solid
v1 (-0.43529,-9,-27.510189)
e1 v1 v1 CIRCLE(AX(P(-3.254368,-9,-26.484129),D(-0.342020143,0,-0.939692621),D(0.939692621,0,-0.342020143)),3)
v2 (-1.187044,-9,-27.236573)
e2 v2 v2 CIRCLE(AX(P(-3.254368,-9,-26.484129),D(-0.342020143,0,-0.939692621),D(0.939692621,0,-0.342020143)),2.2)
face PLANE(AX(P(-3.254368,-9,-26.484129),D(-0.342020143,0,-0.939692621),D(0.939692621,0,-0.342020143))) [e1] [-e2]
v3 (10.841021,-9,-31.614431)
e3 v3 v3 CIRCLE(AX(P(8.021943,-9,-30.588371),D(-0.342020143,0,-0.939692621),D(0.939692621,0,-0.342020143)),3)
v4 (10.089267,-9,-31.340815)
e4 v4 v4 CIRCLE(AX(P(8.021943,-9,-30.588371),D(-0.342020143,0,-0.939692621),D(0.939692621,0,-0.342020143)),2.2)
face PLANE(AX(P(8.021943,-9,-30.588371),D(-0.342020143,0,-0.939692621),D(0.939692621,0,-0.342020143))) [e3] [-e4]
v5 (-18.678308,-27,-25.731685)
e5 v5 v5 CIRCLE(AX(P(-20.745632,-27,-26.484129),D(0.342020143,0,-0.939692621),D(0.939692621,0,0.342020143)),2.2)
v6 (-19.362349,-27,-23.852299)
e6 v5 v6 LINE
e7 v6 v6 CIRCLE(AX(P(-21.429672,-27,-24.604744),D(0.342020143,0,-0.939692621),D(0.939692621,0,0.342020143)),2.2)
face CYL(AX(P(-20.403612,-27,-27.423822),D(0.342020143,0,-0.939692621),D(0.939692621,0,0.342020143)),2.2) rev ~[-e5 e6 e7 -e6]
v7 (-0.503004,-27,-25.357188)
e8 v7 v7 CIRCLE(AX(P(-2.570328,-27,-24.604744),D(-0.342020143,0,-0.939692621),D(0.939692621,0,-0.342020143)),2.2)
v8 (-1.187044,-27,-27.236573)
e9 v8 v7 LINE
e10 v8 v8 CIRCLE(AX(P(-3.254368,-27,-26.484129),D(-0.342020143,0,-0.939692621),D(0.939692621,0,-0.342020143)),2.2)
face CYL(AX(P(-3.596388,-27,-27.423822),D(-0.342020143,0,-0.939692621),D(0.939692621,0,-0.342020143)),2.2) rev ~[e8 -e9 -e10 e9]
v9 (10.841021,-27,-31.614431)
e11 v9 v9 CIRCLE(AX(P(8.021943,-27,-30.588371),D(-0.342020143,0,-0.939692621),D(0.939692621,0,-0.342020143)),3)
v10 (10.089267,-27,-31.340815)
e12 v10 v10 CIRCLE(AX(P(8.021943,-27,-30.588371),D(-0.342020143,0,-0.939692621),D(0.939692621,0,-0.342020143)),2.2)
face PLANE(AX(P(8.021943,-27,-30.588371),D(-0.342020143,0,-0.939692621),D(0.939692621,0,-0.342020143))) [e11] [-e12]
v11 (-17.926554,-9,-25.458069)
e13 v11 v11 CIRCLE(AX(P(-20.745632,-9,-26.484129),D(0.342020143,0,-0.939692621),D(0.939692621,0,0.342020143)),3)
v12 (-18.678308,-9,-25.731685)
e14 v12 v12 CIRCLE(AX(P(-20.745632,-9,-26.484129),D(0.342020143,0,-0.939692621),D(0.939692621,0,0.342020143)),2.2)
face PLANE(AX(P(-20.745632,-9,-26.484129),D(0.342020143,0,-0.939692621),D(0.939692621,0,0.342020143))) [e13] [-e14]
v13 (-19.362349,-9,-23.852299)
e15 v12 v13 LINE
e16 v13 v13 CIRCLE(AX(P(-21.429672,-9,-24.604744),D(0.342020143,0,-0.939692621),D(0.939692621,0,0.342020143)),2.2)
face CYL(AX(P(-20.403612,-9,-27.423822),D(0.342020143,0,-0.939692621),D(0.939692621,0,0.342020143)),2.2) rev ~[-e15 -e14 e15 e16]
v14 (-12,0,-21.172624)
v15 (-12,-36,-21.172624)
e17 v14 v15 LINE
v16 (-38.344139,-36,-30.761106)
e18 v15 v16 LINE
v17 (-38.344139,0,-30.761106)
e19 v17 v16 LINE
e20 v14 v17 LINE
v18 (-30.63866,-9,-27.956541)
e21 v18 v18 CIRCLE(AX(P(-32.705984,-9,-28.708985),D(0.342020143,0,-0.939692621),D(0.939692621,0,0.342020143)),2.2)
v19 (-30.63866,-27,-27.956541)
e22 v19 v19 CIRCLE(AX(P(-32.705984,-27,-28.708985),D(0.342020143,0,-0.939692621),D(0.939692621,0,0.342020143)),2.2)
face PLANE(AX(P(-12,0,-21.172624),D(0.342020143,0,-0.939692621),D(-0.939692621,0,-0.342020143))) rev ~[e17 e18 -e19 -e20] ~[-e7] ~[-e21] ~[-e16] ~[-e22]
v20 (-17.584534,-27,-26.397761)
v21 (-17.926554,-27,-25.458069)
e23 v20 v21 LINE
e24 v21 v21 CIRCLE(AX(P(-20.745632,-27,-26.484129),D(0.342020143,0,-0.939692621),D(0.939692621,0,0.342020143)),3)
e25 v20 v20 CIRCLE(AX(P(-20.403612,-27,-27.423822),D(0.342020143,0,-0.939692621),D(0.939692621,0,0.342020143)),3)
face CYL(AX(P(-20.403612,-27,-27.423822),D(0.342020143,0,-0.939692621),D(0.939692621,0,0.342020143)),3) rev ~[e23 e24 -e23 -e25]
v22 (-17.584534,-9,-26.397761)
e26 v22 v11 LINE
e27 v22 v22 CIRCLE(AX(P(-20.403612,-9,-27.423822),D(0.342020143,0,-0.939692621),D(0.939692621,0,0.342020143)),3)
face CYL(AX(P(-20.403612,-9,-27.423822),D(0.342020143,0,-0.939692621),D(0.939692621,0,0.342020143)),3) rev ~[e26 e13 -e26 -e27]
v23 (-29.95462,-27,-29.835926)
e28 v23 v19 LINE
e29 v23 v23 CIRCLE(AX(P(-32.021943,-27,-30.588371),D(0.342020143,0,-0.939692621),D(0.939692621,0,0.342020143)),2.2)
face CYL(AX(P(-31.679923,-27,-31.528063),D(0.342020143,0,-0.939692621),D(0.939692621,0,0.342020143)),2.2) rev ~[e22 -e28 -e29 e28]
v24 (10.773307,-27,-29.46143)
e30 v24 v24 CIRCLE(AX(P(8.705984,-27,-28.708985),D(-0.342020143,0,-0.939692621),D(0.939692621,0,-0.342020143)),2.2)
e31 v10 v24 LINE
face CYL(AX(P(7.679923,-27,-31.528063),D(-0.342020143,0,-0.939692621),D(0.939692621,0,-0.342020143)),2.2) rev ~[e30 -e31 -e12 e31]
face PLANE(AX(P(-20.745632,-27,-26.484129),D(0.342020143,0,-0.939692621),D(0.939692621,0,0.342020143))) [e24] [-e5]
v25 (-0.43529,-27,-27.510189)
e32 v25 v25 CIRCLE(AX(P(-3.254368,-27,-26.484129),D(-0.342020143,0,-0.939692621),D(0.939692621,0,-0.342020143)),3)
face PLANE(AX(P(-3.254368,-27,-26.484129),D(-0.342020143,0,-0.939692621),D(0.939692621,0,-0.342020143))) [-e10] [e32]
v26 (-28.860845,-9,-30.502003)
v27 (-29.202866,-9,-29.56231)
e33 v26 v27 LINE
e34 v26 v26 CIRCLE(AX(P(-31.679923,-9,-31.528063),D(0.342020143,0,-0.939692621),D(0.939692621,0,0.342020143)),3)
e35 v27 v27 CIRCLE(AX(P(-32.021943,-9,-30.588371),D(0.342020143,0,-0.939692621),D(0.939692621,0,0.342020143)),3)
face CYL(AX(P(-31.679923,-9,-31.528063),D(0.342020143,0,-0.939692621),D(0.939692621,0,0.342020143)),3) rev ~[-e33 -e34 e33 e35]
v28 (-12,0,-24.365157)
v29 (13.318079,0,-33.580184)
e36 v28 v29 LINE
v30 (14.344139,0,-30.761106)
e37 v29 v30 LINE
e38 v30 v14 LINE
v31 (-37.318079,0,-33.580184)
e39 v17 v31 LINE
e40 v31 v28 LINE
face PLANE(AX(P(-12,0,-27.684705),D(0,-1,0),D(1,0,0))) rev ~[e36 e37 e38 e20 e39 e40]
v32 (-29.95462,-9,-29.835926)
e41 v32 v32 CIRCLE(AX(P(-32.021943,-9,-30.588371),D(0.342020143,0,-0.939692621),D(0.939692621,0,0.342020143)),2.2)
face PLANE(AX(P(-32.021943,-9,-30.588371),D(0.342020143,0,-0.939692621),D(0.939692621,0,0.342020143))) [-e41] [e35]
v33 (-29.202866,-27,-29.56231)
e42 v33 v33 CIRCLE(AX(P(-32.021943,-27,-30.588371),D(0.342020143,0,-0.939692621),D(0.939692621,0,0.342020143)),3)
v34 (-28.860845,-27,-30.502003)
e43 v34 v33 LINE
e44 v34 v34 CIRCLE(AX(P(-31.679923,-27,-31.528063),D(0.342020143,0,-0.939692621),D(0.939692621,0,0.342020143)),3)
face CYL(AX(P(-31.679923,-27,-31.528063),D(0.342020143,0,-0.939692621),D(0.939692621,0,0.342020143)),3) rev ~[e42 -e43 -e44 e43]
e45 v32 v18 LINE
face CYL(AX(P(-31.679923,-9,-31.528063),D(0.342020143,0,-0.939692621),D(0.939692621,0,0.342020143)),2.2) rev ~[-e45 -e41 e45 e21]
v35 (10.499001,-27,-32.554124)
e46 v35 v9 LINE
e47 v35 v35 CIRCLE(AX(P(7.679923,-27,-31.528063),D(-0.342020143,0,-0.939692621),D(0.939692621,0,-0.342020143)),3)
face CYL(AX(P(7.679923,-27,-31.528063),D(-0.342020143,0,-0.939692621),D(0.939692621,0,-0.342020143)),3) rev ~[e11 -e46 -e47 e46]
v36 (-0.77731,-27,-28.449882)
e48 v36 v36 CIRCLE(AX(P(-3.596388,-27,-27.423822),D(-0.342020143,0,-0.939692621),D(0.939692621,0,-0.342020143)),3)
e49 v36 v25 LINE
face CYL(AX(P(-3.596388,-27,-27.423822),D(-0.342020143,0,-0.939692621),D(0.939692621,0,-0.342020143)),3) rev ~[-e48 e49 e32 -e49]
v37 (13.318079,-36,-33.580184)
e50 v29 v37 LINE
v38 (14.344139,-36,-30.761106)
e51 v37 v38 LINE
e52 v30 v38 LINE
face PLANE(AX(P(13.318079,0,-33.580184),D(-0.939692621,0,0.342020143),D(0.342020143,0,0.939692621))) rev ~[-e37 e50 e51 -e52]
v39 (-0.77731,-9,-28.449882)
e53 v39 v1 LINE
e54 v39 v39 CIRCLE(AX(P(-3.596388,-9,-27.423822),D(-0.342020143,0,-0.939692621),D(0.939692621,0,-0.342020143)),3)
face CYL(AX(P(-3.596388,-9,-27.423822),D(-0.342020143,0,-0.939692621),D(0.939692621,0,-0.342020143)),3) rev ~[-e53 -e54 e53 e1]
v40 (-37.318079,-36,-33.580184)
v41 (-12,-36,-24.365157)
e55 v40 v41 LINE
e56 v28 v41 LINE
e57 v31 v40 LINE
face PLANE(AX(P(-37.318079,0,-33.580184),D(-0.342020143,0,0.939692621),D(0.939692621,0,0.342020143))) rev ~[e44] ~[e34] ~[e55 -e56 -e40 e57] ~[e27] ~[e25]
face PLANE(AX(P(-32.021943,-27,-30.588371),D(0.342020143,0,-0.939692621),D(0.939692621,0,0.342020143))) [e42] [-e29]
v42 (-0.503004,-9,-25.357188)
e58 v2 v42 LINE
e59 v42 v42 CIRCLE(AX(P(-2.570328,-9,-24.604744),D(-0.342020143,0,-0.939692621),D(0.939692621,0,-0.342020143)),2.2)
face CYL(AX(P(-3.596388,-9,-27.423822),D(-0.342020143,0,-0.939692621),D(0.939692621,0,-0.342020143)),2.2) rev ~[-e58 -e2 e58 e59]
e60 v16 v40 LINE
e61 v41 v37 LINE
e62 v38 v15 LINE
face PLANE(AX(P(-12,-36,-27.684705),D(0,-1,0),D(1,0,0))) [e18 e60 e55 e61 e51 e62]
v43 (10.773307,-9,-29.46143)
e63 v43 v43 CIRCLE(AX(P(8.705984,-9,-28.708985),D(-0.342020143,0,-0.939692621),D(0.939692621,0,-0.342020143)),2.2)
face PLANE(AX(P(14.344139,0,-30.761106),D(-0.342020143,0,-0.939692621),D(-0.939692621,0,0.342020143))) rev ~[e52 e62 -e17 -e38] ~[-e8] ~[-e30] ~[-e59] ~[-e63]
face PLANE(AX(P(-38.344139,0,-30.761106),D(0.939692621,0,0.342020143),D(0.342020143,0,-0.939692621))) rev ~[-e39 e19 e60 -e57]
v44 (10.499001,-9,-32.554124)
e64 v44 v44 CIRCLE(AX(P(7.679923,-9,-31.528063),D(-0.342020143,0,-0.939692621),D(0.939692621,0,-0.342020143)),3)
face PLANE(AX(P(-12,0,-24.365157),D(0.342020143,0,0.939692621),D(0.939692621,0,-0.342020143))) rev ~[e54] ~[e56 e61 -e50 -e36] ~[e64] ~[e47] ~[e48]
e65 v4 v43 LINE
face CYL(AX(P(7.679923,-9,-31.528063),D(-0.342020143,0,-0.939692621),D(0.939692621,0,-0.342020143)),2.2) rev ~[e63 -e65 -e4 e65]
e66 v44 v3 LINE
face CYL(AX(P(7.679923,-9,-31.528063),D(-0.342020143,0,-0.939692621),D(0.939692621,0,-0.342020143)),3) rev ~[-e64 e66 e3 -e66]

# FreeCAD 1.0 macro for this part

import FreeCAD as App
import Part
import Sketcher

V = App.Vector
Q = App.Units.Quantity


def add_polygon(sketch, points):
    """Adds a closed chain of lines whose ends are joined by coincident constraints."""
    first, n = sketch.GeometryCount, len(points)
    for a, b in zip(points, points[1:] + points[:1]):
        sketch.addGeometry(Part.LineSegment(App.Vector(*a, 0), App.Vector(*b, 0)), False)
    for i in range(n):
        sketch.addConstraint(Sketcher.Constraint("Coincident", first + i, 2, first + (i + 1) % n, 1))

doc = App.newDocument("Part")
body = doc.addObject("PartDesign::Body", "Body")

# Sketch on XZ plane
sketch1 = doc.addObject("Sketcher::SketchObject", "Sketch")
body.addObject(sketch1)
sketch1.AttachmentSupport = (doc.XZ_Plane, [""])
sketch1.MapMode = "FlatFace"
add_polygon(sketch1, [(-12, -21.2), (-38.3, -30.8), (-37.3, -33.6), (-12, -24.4), (13.3, -33.6), (14.3, -30.8)])  # lines 0-5
sketch1.addConstraint([
    Sketcher.Constraint("Perpendicular", 0, 1),
    Sketcher.Constraint("Perpendicular", 1, 2),
    Sketcher.Constraint("Perpendicular", 3, 4),
    Sketcher.Constraint("Perpendicular", 4, 5),
    Sketcher.Constraint("Horizontal", 1, 2, 3, 2),
    Sketcher.Constraint("Horizontal", 0, 2, 4, 2),
    Sketcher.Constraint("Vertical", 2, 2, 5, 2),
    Sketcher.Constraint("Angle", 0, Q("-160 deg")),
    Sketcher.Constraint("Distance", 1, 3.0),
    Sketcher.Constraint("DistanceX", 2, 2, -1, 1, 12.0),
    Sketcher.Constraint("DistanceX", 0, 2, -1, 1, 38.344139),
    Sketcher.Constraint("DistanceY", 0, 2, -1, 1, 30.761106),
])
pad1 = doc.addObject("PartDesign::Pad", "Pad")
body.addObject(pad1)
pad1.Profile = sketch1
pad1.Length = 36

# Sketch on an angled plane
sketch2 = doc.addObject("Sketcher::SketchObject", "Sketch001")
body.addObject(sketch2)
sketch2.Placement = App.Placement(V(6.427077, 0, -17.658249), App.Rotation(V(0.939692621, 0, 0.342020143), V(0, -1, 0), V(0.342020143, 0, -0.939692621), "ZXY"))
sketch2.addGeometry([
    Part.Circle(V(-40.6, 27, 0), V(0, 0, 1), 2.2),
    Part.Circle(V(-28.6, 27, 0), V(0, 0, 1), 2.2),
    Part.Circle(V(-28.6, 9, 0), V(0, 0, 1), 2.2),
    Part.Circle(V(-40.6, 9, 0), V(0, 0, 1), 2.2),
], False)
sketch2.addConstraint([
    Sketcher.Constraint("Equal", 0, 1),
    Sketcher.Constraint("Equal", 1, 2),
    Sketcher.Constraint("Equal", 2, 3),
    Sketcher.Constraint("Horizontal", 0, 3, 1, 3),
    Sketcher.Constraint("Horizontal", 2, 3, 3, 3),
    Sketcher.Constraint("Vertical", 1, 3, 2, 3),
    Sketcher.Constraint("Vertical", 0, 3, 3, 3),
    Sketcher.Constraint("Diameter", 0, 4.4),
    Sketcher.Constraint("DistanceY", -1, 1, 0, 3, 27.0),
    Sketcher.Constraint("DistanceY", -1, 1, 2, 3, 9.0),
    Sketcher.Constraint("DistanceX", 0, 3, 1, 3, 12.0),
    Sketcher.Constraint("DistanceX", 0, 3, -1, 1, 40.552623),
])
pocket1 = doc.addObject("PartDesign::Pocket", "Pocket")
body.addObject(pocket1)
pocket1.Profile = sketch2
pocket1.Type = "ThroughAll"

# Sketch on an angled plane
sketch3 = doc.addObject("Sketcher::SketchObject", "Sketch002")
body.addObject(sketch3)
sketch3.Placement = App.Placement(V(6.427077, 0, -17.658249), App.Rotation(V(0.939692621, 0, 0.342020143), V(0, -1, 0), V(0.342020143, 0, -0.939692621), "ZXY"))
sketch3.addGeometry([
    Part.Circle(V(-40.6, 27, 0), V(0, 0, 1), 3),  # 0
    Part.Circle(V(-40.6, 27, 0), V(0, 0, 1), 2.2),  # 1
    Part.Circle(V(-40.6, 9, 0), V(0, 0, 1), 3),  # 2
    Part.Circle(V(-40.6, 9, 0), V(0, 0, 1), 2.2),  # 3
    Part.Circle(V(-28.6, 9, 0), V(0, 0, 1), 3),  # 4
    Part.Circle(V(-28.6, 9, 0), V(0, 0, 1), 2.2),  # 5
    Part.Circle(V(-28.6, 27, 0), V(0, 0, 1), 3),  # 6
    Part.Circle(V(-28.6, 27, 0), V(0, 0, 1), 2.2),  # 7
], False)
sketch3.addConstraint([
    Sketcher.Constraint("Coincident", 1, 3, 0, 3),
    Sketcher.Constraint("Coincident", 3, 3, 2, 3),
    Sketcher.Constraint("Coincident", 5, 3, 4, 3),
    Sketcher.Constraint("Coincident", 7, 3, 6, 3),
    Sketcher.Constraint("Equal", 0, 2),
    Sketcher.Constraint("Equal", 1, 3),
    Sketcher.Constraint("Equal", 2, 4),
    Sketcher.Constraint("Equal", 3, 5),
    Sketcher.Constraint("Equal", 4, 6),
    Sketcher.Constraint("Equal", 5, 7),
    Sketcher.Constraint("Horizontal", 3, 3, 4, 3),
    Sketcher.Constraint("Horizontal", 1, 3, 6, 3),
    Sketcher.Constraint("Vertical", 1, 3, 2, 3),
    Sketcher.Constraint("Vertical", 5, 3, 6, 3),
    Sketcher.Constraint("Diameter", 0, 6.0),
    Sketcher.Constraint("Diameter", 1, 4.4),
    Sketcher.Constraint("DistanceY", -1, 1, 0, 3, 27.0),
    Sketcher.Constraint("DistanceY", -1, 1, 2, 3, 9.0),
    Sketcher.Constraint("DistanceX", 2, 3, 4, 3, 12.0),
    Sketcher.Constraint("DistanceX", 0, 3, -1, 1, 40.552623),
])
pocket2 = doc.addObject("PartDesign::Pocket", "Pocket001")
body.addObject(pocket2)
pocket2.Profile = sketch3
pocket2.Length = 1

# Sketch on an angled plane
sketch4 = doc.addObject("Sketcher::SketchObject", "Sketch003")
body.addObject(sketch4)
sketch4.Placement = App.Placement(V(-9.234544, 0, -25.371701), App.Rotation(V(0.939692621, 0, -0.342020143), V(0, -1, 0), V(-0.342020143, 0, -0.939692621), "ZXY"))
sketch4.addGeometry([
    Part.Circle(V(6, 27, 0), V(0, 0, 1), 2.2),
    Part.Circle(V(18, 27, 0), V(0, 0, 1), 2.2),
    Part.Circle(V(6, 9, 0), V(0, 0, 1), 2.2),
    Part.Circle(V(18, 9, 0), V(0, 0, 1), 2.2),
], False)
sketch4.addConstraint([
    Sketcher.Constraint("Equal", 0, 1),
    Sketcher.Constraint("Equal", 1, 2),
    Sketcher.Constraint("Equal", 2, 3),
    Sketcher.Constraint("Horizontal", 0, 3, 1, 3),
    Sketcher.Constraint("Horizontal", 2, 3, 3, 3),
    Sketcher.Constraint("Vertical", 0, 3, 2, 3),
    Sketcher.Constraint("Vertical", 1, 3, 3, 3),
    Sketcher.Constraint("Diameter", 0, 4.4),
    Sketcher.Constraint("DistanceX", -1, 1, 0, 3, 6.0),
    Sketcher.Constraint("DistanceY", -1, 1, 0, 3, 27.0),
    Sketcher.Constraint("DistanceX", -1, 1, 1, 3, 18.0),
    Sketcher.Constraint("DistanceY", -1, 1, 2, 3, 9.0),
])
pocket3 = doc.addObject("PartDesign::Pocket", "Pocket002")
body.addObject(pocket3)
pocket3.Profile = sketch4
pocket3.Type = "ThroughAll"

# Sketch on an angled plane
sketch5 = doc.addObject("Sketcher::SketchObject", "Sketch004")
body.addObject(sketch5)
sketch5.Placement = App.Placement(V(-9.234544, 0, -25.371701), App.Rotation(V(0.939692621, 0, -0.342020143), V(0, -1, 0), V(-0.342020143, 0, -0.939692621), "ZXY"))
sketch5.addGeometry([
    Part.Circle(V(6, 27, 0), V(0, 0, 1), 3),  # 0
    Part.Circle(V(6, 27, 0), V(0, 0, 1), 2.2),  # 1
    Part.Circle(V(18, 27, 0), V(0, 0, 1), 3),  # 2
    Part.Circle(V(18, 27, 0), V(0, 0, 1), 2.2),  # 3
    Part.Circle(V(18, 9, 0), V(0, 0, 1), 3),  # 4
    Part.Circle(V(18, 9, 0), V(0, 0, 1), 2.2),  # 5
    Part.Circle(V(6, 9, 0), V(0, 0, 1), 3),  # 6
    Part.Circle(V(6, 9, 0), V(0, 0, 1), 2.2),  # 7
], False)
sketch5.addConstraint([
    Sketcher.Constraint("Coincident", 1, 3, 0, 3),
    Sketcher.Constraint("Coincident", 3, 3, 2, 3),
    Sketcher.Constraint("Coincident", 5, 3, 4, 3),
    Sketcher.Constraint("Coincident", 7, 3, 6, 3),
    Sketcher.Constraint("Equal", 0, 2),
    Sketcher.Constraint("Equal", 1, 3),
    Sketcher.Constraint("Equal", 2, 4),
    Sketcher.Constraint("Equal", 3, 5),
    Sketcher.Constraint("Equal", 4, 6),
    Sketcher.Constraint("Equal", 5, 7),
    Sketcher.Constraint("Horizontal", 1, 3, 2, 3),
    Sketcher.Constraint("Horizontal", 5, 3, 6, 3),
    Sketcher.Constraint("Vertical", 3, 3, 4, 3),
    Sketcher.Constraint("Vertical", 1, 3, 6, 3),
    Sketcher.Constraint("Diameter", 0, 6.0),
    Sketcher.Constraint("Diameter", 1, 4.4),
    Sketcher.Constraint("DistanceX", -1, 1, 0, 3, 6.0),
    Sketcher.Constraint("DistanceY", -1, 1, 0, 3, 27.0),
    Sketcher.Constraint("DistanceX", -1, 1, 2, 3, 18.0),
    Sketcher.Constraint("DistanceY", -1, 1, 4, 3, 9.0),
])
pocket4 = doc.addObject("PartDesign::Pocket", "Pocket003")
body.addObject(pocket4)
pocket4.Profile = sketch5
pocket4.Length = 1

doc.recompute()
